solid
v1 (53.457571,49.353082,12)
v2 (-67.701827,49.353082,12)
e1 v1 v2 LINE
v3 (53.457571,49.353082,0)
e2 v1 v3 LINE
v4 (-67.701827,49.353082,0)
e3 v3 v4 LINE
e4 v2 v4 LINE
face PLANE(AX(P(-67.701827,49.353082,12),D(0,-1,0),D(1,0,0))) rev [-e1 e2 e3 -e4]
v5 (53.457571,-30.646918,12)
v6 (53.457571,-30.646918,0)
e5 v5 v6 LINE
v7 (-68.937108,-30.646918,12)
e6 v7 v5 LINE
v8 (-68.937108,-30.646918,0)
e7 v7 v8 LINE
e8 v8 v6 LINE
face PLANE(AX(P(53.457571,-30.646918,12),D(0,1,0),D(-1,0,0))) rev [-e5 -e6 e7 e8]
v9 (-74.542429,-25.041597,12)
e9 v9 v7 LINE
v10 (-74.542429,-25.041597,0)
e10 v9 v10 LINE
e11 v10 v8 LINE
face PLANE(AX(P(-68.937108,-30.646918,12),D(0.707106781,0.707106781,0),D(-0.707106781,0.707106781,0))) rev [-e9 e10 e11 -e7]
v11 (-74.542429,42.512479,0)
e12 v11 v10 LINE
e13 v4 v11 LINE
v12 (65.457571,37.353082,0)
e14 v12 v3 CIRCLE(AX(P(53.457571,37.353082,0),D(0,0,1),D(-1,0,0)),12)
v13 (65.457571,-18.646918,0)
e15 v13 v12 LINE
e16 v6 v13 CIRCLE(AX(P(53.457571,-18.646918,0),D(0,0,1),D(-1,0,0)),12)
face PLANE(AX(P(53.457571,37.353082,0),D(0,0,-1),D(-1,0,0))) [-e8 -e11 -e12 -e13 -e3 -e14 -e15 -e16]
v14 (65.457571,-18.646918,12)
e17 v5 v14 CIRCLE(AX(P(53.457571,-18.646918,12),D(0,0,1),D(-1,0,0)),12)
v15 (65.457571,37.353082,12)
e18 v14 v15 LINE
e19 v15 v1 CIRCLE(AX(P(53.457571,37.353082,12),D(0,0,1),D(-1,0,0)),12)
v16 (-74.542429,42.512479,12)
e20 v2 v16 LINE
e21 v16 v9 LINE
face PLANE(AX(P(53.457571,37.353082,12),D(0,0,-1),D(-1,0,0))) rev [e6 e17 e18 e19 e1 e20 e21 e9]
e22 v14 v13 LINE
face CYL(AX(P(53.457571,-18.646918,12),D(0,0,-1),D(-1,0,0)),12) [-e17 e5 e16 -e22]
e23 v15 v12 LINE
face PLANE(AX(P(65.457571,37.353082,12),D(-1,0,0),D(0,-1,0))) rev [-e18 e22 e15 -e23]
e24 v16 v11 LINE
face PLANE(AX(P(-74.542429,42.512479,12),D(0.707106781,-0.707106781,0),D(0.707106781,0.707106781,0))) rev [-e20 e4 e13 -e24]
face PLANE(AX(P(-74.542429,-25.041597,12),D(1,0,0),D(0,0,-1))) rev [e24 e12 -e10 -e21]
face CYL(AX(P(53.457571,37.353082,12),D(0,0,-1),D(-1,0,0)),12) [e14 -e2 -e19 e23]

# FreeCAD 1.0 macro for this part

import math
import FreeCAD as App
import Part
import Sketcher

V = App.Vector
Q = App.Units.Quantity

doc = App.newDocument("Part")
body = doc.addObject("PartDesign::Body", "Body")

sketch1 = body.newObject("Sketcher::SketchObject", "Sketch")
sketch1.AttachmentSupport = (doc.getObject("XY_Plane"), [""])
sketch1.MapMode = "FlatFace"
sketch1.addGeometry(Part.LineSegment(V(-68, 49, 0), V(-75, 43, 0)), False)
sketch1.addGeometry(Part.LineSegment(V(-75, 43, 0), V(-75, -25, 0)), False)
sketch1.addGeometry(Part.LineSegment(V(-75, -25, 0), V(-69, -31, 0)), False)
sketch1.addGeometry(Part.LineSegment(V(-69, -31, 0), V(53, -31, 0)), False)
sketch1.addGeometry(Part.ArcOfCircle(Part.Circle(V(53, -19, 0), V(0, 0, 1), 12), math.radians(-90), math.radians(0)), False)
sketch1.addGeometry(Part.LineSegment(V(65, -19, 0), V(65, 37, 0)), False)
sketch1.addGeometry(Part.ArcOfCircle(Part.Circle(V(53, 37, 0), V(0, 0, 1), 12), math.radians(0), math.radians(90)), False)
sketch1.addGeometry(Part.LineSegment(V(53, 49, 0), V(-68, 49, 0)), False)
sketch1.addConstraint(Sketcher.Constraint("Coincident", 0, 2, 1, 1))
sketch1.addConstraint(Sketcher.Constraint("Coincident", 1, 2, 2, 1))
sketch1.addConstraint(Sketcher.Constraint("Coincident", 2, 2, 3, 1))
sketch1.addConstraint(Sketcher.Constraint("Tangent", 3, 2, 4, 1))
sketch1.addConstraint(Sketcher.Constraint("Tangent", 4, 2, 5, 1))
sketch1.addConstraint(Sketcher.Constraint("Tangent", 5, 2, 6, 1))
sketch1.addConstraint(Sketcher.Constraint("Tangent", 6, 2, 7, 1))
sketch1.addConstraint(Sketcher.Constraint("Coincident", 7, 2, 0, 1))
sketch1.addConstraint(Sketcher.Constraint("Vertical", 1))
sketch1.addConstraint(Sketcher.Constraint("Horizontal", 3))
sketch1.addConstraint(Sketcher.Constraint("Vertical", 5))
sketch1.addConstraint(Sketcher.Constraint("Horizontal", 7))
sketch1.addConstraint(Sketcher.Constraint("Equal", 4, 6))
sketch1.addConstraint(Sketcher.Constraint("Perpendicular", 0, 2))
sketch1.addConstraint(Sketcher.Constraint("Radius", 4, Q("12 mm")))
sketch1.addConstraint(Sketcher.Constraint("DistanceY", 5, 1, 5, 2, Q("56 mm")))
sketch1.addConstraint(Sketcher.Constraint("Angle", 0, Q("-135 deg")))
sketch1.addConstraint(Sketcher.Constraint("DistanceX", 0, 2, 6, 3, Q("128 mm")))
sketch1.addConstraint(Sketcher.Constraint("DistanceX", 3, 1, 3, 2, Q("122.394679 mm")))
sketch1.addConstraint(Sketcher.Constraint("DistanceX", 7, 2, 7, 1, Q("121.159398 mm")))
sketch1.addConstraint(Sketcher.Constraint("DistanceX", -1, 1, 4, 3, Q("53.457571 mm")))
sketch1.addConstraint(Sketcher.Constraint("DistanceY", 4, 3, -1, 1, Q("18.646918 mm")))
pad1 = body.newObject("PartDesign::Pad", "Pad")
pad1.Profile = sketch1
pad1.Length = 12

doc.recompute()
